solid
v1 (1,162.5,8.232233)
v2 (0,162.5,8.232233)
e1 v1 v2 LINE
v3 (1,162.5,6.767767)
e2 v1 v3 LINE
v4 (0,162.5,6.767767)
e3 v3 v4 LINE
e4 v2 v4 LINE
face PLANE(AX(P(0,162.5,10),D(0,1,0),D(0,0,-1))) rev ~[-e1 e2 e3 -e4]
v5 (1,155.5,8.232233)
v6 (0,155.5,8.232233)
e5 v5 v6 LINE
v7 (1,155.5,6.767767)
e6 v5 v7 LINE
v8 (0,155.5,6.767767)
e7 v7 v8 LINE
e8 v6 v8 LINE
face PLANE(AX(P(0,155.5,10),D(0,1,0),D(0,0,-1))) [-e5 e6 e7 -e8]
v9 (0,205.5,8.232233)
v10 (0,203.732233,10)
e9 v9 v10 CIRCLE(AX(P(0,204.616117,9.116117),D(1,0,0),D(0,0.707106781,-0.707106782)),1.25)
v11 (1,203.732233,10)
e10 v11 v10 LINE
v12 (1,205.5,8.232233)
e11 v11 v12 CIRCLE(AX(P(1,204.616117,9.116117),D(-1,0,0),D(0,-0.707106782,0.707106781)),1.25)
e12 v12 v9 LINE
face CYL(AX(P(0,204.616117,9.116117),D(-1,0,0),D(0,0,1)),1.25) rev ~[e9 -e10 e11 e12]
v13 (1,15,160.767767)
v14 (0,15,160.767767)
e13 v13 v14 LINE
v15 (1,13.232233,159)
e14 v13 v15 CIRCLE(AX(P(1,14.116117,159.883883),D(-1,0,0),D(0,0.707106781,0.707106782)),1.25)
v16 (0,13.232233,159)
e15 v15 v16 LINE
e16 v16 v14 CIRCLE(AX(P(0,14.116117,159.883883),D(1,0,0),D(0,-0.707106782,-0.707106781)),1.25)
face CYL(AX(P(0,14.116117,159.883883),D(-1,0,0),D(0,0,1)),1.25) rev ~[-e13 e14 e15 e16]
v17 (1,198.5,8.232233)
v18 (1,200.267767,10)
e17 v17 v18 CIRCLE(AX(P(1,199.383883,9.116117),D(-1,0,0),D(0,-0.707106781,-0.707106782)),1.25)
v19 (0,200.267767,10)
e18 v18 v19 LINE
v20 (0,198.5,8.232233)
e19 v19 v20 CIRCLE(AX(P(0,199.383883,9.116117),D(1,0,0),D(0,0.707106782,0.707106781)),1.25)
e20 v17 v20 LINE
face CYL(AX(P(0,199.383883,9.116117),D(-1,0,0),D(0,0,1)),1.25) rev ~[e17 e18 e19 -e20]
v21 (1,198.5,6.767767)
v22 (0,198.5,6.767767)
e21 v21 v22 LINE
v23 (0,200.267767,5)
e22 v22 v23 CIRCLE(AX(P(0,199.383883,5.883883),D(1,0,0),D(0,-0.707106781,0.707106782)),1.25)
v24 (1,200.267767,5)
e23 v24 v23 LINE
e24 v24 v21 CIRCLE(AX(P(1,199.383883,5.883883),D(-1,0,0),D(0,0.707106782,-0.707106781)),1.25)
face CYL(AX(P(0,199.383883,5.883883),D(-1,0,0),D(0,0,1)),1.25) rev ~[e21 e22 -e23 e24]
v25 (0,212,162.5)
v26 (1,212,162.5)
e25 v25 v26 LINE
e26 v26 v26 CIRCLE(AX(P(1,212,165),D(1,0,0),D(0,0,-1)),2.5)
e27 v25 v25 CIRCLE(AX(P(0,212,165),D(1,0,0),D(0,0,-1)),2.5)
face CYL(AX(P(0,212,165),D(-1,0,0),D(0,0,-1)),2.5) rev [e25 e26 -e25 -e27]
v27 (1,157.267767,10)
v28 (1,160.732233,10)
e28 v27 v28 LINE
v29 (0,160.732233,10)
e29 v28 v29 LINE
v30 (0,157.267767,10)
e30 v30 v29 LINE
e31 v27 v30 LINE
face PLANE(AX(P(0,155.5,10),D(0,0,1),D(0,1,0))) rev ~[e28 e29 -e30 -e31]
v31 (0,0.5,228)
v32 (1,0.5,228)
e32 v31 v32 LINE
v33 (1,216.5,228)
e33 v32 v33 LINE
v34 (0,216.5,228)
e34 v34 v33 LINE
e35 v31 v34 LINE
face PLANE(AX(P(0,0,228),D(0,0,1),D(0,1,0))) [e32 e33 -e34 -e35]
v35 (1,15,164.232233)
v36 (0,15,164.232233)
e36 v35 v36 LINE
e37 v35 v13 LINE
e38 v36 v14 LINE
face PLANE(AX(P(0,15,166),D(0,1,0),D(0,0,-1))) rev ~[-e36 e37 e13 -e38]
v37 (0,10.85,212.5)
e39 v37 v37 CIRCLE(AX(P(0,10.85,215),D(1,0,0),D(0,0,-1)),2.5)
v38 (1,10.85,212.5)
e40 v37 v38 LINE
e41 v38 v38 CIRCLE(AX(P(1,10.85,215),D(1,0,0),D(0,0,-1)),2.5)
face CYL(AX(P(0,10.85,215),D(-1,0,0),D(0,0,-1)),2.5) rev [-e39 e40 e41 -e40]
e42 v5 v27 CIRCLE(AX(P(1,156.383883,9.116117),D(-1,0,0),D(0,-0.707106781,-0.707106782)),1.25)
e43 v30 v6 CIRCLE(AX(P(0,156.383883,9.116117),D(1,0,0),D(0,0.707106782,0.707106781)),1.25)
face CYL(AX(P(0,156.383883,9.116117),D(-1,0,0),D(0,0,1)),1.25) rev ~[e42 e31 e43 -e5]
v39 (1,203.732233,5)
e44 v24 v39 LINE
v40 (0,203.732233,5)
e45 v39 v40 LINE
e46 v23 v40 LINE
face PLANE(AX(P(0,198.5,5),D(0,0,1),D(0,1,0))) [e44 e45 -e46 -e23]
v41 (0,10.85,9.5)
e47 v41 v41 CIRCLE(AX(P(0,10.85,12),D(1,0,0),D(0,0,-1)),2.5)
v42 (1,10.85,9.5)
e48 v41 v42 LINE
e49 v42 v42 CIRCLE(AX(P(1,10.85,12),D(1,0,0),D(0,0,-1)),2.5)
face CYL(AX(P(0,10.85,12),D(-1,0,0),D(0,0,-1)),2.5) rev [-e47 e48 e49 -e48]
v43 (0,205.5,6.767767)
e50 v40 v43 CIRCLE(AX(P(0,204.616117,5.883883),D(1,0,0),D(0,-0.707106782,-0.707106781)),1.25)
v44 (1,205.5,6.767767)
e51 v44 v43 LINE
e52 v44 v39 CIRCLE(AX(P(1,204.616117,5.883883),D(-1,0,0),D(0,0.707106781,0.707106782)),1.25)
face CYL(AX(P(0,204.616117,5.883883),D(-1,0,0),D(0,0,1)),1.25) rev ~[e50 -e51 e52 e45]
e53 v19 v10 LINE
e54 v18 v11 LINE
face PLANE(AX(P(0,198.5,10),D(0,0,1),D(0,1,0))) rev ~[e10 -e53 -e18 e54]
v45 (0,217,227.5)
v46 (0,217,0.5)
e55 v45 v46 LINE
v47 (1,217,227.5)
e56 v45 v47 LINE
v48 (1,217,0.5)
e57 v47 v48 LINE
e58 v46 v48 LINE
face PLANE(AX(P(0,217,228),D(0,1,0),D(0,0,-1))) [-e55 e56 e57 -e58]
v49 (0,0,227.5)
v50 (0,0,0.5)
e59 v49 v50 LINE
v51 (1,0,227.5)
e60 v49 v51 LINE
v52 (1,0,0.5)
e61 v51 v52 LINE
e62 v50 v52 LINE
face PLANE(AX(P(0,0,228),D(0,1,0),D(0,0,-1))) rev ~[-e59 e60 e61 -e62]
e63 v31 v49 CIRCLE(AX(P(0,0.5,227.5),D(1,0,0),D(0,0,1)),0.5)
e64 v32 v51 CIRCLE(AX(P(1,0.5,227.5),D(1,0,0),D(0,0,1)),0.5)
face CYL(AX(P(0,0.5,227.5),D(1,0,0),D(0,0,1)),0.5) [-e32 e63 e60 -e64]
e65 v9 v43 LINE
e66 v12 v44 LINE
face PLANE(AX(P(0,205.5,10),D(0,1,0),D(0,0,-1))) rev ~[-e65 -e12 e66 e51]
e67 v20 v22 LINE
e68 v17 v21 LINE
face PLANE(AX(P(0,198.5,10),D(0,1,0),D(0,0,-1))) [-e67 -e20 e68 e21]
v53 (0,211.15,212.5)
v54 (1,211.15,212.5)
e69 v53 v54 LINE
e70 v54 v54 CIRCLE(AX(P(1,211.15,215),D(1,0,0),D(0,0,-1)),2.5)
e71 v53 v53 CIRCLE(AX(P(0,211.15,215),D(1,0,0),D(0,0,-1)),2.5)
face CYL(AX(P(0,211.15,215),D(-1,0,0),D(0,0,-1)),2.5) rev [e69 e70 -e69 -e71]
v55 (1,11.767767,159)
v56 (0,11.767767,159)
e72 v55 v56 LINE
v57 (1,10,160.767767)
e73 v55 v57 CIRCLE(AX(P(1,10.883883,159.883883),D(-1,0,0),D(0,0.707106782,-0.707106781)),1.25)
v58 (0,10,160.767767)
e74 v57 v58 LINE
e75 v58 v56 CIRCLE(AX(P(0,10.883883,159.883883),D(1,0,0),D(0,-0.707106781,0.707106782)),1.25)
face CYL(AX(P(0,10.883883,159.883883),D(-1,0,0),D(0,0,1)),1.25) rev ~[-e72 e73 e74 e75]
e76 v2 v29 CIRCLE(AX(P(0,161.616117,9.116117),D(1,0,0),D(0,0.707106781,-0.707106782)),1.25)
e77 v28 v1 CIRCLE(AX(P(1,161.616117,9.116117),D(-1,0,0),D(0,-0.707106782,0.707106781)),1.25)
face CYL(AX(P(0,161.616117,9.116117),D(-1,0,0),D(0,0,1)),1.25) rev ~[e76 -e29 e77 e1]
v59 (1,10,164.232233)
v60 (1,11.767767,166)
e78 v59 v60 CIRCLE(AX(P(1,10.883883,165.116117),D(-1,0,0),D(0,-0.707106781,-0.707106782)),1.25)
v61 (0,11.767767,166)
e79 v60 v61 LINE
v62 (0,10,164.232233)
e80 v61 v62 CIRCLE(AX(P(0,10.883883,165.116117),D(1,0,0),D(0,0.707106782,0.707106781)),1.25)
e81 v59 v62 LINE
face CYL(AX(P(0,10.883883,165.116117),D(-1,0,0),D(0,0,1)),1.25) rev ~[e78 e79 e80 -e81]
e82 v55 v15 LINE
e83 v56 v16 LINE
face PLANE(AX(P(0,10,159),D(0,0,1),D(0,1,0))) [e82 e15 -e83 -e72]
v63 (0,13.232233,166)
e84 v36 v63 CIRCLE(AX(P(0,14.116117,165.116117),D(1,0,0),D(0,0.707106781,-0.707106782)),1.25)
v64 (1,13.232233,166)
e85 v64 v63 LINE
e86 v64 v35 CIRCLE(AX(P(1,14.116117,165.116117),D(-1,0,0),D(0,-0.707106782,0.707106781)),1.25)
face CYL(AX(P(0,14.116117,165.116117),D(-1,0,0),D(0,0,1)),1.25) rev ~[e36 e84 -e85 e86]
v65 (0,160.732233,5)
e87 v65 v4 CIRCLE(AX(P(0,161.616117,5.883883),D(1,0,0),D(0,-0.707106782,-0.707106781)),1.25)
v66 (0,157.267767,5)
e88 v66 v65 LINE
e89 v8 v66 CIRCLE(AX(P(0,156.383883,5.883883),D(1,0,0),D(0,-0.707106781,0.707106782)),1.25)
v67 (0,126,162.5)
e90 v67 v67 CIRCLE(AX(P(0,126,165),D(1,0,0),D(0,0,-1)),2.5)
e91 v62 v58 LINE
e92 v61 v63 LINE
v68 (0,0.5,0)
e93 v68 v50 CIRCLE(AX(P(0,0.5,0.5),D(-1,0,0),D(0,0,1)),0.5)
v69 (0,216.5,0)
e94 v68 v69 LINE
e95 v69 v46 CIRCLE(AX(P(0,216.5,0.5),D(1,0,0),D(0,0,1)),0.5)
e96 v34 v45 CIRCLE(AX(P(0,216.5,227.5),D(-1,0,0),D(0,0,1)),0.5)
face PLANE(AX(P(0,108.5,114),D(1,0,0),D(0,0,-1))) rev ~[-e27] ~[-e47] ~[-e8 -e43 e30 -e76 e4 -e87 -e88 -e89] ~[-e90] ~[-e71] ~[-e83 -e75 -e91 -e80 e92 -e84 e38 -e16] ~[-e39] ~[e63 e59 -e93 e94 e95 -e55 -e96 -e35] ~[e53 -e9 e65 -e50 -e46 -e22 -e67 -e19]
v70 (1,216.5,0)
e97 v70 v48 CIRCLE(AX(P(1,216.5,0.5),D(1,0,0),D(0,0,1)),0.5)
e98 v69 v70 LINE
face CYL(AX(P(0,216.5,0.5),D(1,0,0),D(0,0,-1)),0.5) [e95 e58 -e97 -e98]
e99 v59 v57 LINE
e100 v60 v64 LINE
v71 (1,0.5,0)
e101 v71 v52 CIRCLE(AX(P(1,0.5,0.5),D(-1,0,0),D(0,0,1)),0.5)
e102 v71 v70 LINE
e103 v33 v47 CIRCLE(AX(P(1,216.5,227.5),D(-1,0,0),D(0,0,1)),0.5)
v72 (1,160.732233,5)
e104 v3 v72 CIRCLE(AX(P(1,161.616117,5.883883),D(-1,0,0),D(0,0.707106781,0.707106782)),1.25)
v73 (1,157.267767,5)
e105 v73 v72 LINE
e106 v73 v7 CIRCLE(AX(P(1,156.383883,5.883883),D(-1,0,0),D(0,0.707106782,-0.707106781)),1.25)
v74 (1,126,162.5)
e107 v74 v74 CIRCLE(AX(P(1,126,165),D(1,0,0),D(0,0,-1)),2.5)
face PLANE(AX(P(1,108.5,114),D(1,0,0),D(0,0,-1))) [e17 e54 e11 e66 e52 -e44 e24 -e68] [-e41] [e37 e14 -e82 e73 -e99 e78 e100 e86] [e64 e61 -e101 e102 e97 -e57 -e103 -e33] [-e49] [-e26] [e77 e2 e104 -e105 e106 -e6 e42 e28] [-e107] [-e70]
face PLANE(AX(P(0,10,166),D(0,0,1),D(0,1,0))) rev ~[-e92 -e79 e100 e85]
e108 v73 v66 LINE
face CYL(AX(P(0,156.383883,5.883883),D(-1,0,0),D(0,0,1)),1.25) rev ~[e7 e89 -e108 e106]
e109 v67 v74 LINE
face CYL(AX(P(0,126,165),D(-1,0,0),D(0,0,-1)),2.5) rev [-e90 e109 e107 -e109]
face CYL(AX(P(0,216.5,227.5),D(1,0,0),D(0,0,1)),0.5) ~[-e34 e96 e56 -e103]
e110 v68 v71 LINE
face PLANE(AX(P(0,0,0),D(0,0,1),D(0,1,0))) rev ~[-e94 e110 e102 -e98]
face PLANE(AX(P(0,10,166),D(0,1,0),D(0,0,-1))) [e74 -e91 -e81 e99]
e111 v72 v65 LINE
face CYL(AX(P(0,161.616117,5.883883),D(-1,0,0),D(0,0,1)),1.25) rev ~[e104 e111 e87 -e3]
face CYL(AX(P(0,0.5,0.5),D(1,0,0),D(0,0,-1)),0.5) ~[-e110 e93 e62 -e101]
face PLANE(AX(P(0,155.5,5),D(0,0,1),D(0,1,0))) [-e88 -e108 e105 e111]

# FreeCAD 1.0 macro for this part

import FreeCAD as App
import Part
import Sketcher
Q = App.Units.Quantity


def edges_at(feature, points):
    """Names of the edges that pass closest to the given points."""
    edges = feature.Shape.Edges
    near = lambda p: min(range(len(edges)), key=lambda i: edges[i].distToShape(Part.Vertex(*p))[0])
    return sorted({f"Edge{near(p) + 1}" for p in points})

doc = App.newDocument("Part")
body = doc.addObject("PartDesign::Body", "Body")

sketch1 = body.newObject("Sketcher::SketchObject", "Sketch")
sketch1.AttachmentSupport = (doc.getObject("YZ_Plane"), [""])
sketch1.MapMode = "FlatFace"
sketch1.addGeometry([
    Part.LineSegment(App.Vector(217, 228, 0), App.Vector(0, 228, 0)),
    Part.LineSegment(App.Vector(0, 228, 0), App.Vector(0, 0, 0)),
    Part.LineSegment(App.Vector(0, 0, 0), App.Vector(217, 0, 0)),
    Part.LineSegment(App.Vector(217, 0, 0), App.Vector(217, 228, 0)),
    Part.Circle(App.Vector(10.8, 215, 0), App.Vector(0, 0, 1), 2.5),
    Part.LineSegment(App.Vector(10, 159, 0), App.Vector(10, 166, 0)),
    Part.LineSegment(App.Vector(10, 166, 0), App.Vector(15, 166, 0)),
    Part.LineSegment(App.Vector(15, 166, 0), App.Vector(15, 159, 0)),
    Part.LineSegment(App.Vector(15, 159, 0), App.Vector(10, 159, 0)),
    Part.Circle(App.Vector(10.8, 12, 0), App.Vector(0, 0, 1), 2.5),
    Part.Circle(App.Vector(126, 165, 0), App.Vector(0, 0, 1), 2.5),
    Part.Circle(App.Vector(211.2, 215, 0), App.Vector(0, 0, 1), 2.5),
    Part.Circle(App.Vector(212, 165, 0), App.Vector(0, 0, 1), 2.5),
    Part.LineSegment(App.Vector(155.5, 5, 0), App.Vector(155.5, 10, 0)),
    Part.LineSegment(App.Vector(155.5, 10, 0), App.Vector(162.5, 10, 0)),
    Part.LineSegment(App.Vector(162.5, 10, 0), App.Vector(162.5, 5, 0)),
    Part.LineSegment(App.Vector(162.5, 5, 0), App.Vector(155.5, 5, 0)),
    Part.LineSegment(App.Vector(198.5, 5, 0), App.Vector(198.5, 10, 0)),
    Part.LineSegment(App.Vector(198.5, 10, 0), App.Vector(205.5, 10, 0)),
    Part.LineSegment(App.Vector(205.5, 10, 0), App.Vector(205.5, 5, 0)),
    Part.LineSegment(App.Vector(205.5, 5, 0), App.Vector(198.5, 5, 0)),
], False)
sketch1.addConstraint([
    Sketcher.Constraint("Coincident", 0, 2, 1, 1),
    Sketcher.Constraint("Coincident", 1, 2, 2, 1),
    Sketcher.Constraint("Coincident", 2, 2, 3, 1),
    Sketcher.Constraint("Coincident", 3, 2, 0, 1),
    Sketcher.Constraint("Coincident", 5, 2, 6, 1),
    Sketcher.Constraint("Coincident", 6, 2, 7, 1),
    Sketcher.Constraint("Coincident", 7, 2, 8, 1),
    Sketcher.Constraint("Coincident", 8, 2, 5, 1),
    Sketcher.Constraint("Coincident", 13, 2, 14, 1),
    Sketcher.Constraint("Coincident", 14, 2, 15, 1),
    Sketcher.Constraint("Coincident", 15, 2, 16, 1),
    Sketcher.Constraint("Coincident", 16, 2, 13, 1),
    Sketcher.Constraint("Coincident", 17, 2, 18, 1),
    Sketcher.Constraint("Coincident", 18, 2, 19, 1),
    Sketcher.Constraint("Coincident", 19, 2, 20, 1),
    Sketcher.Constraint("Coincident", 20, 2, 17, 1),
    Sketcher.Constraint("Horizontal", 0),
    Sketcher.Constraint("Vertical", 1),
    Sketcher.Constraint("Horizontal", 2),
    Sketcher.Constraint("Vertical", 3),
    Sketcher.Constraint("Vertical", 5),
    Sketcher.Constraint("Horizontal", 6),
    Sketcher.Constraint("Vertical", 7),
    Sketcher.Constraint("Horizontal", 8),
    Sketcher.Constraint("Vertical", 13),
    Sketcher.Constraint("Horizontal", 14),
    Sketcher.Constraint("Vertical", 15),
    Sketcher.Constraint("Horizontal", 16),
    Sketcher.Constraint("Vertical", 17),
    Sketcher.Constraint("Horizontal", 18),
    Sketcher.Constraint("Vertical", 19),
    Sketcher.Constraint("Horizontal", 20),
    Sketcher.Constraint("Coincident", 1, 2, -1, 1),
    Sketcher.Constraint("Equal", 4, 9),
    Sketcher.Constraint("Equal", 9, 10),
    Sketcher.Constraint("Equal", 10, 11),
    Sketcher.Constraint("Equal", 11, 12),
    Sketcher.Constraint("Horizontal", 4, 3, 11, 3),
    Sketcher.Constraint("Horizontal", 10, 3, 12, 3),
    Sketcher.Constraint("Horizontal", 14, 2, 17, 2),
    Sketcher.Constraint("Horizontal", 16, 2, 19, 2),
    Sketcher.Constraint("Vertical", 4, 3, 9, 3),
    Sketcher.Constraint("Equal", 16, 18),
    Sketcher.Constraint("Equal", 20, 5),
    Sketcher.Constraint("Equal", 8, 13),
    Sketcher.Constraint("Diameter", 4, Q("5 mm")),
    Sketcher.Constraint("DistanceX", 0, 2, 0, 1, Q("217 mm")),
    Sketcher.Constraint("DistanceX", 6, 1, 6, 2, Q("5 mm")),
    Sketcher.Constraint("DistanceX", 14, 1, 14, 2, Q("7 mm")),
    Sketcher.Constraint("DistanceY", 1, 2, 1, 1, Q("228 mm")),
    Sketcher.Constraint("DistanceY", -1, 1, 4, 3, Q("215 mm")),
    Sketcher.Constraint("DistanceY", -1, 1, 9, 3, Q("12 mm")),
    Sketcher.Constraint("DistanceX", -1, 1, 10, 3, Q("126 mm")),
    Sketcher.Constraint("DistanceY", -1, 1, 10, 3, Q("165 mm")),
    Sketcher.Constraint("DistanceX", -1, 1, 12, 3, Q("212 mm")),
    Sketcher.Constraint("DistanceX", -1, 1, 5, 2, Q("10 mm")),
    Sketcher.Constraint("DistanceY", -1, 1, 5, 2, Q("166 mm")),
    Sketcher.Constraint("DistanceY", -1, 1, 13, 2, Q("10 mm")),
    Sketcher.Constraint("DistanceX", 14, 2, 17, 2, Q("36 mm")),
    Sketcher.Constraint("DistanceX", -1, 1, 13, 2, Q("155.5 mm")),
    Sketcher.Constraint("DistanceX", 4, 3, 11, 3, Q("200.3 mm")),
    Sketcher.Constraint("DistanceX", -1, 1, 4, 3, Q("10.85 mm")),
])
pad1 = body.newObject("PartDesign::Pad", "Pad")
pad1.Profile = sketch1
pad1.Length = 1

sketch2 = body.newObject("Sketcher::SketchObject", "Sketch001")
sketch2.AttachmentSupport = (doc.getObject("YZ_Plane"), [""])
sketch2.MapMode = "FlatFace"
sketch2.addGeometry([
    Part.Circle(App.Vector(204.6, 5.9, 0), App.Vector(0, 0, 1), 1.2),
    Part.Circle(App.Vector(204.6, 9.1, 0), App.Vector(0, 0, 1), 1.2),
    Part.Circle(App.Vector(199.4, 5.9, 0), App.Vector(0, 0, 1), 1.2),
    Part.Circle(App.Vector(199.4, 9.1, 0), App.Vector(0, 0, 1), 1.2),
    Part.Circle(App.Vector(161.6, 9.1, 0), App.Vector(0, 0, 1), 1.2),
    Part.Circle(App.Vector(161.6, 5.9, 0), App.Vector(0, 0, 1), 1.2),
    Part.Circle(App.Vector(156.4, 9.1, 0), App.Vector(0, 0, 1), 1.2),
    Part.Circle(App.Vector(156.4, 5.9, 0), App.Vector(0, 0, 1), 1.2),
    Part.Circle(App.Vector(14.1, 165.1, 0), App.Vector(0, 0, 1), 1.2),
    Part.Circle(App.Vector(10.9, 165.1, 0), App.Vector(0, 0, 1), 1.2),
    Part.Circle(App.Vector(10.9, 159.9, 0), App.Vector(0, 0, 1), 1.2),
    Part.Circle(App.Vector(14.1, 159.9, 0), App.Vector(0, 0, 1), 1.2),
], False)
sketch2.addConstraint([
    Sketcher.Constraint("Equal", 0, 1),
    Sketcher.Constraint("Equal", 1, 2),
    Sketcher.Constraint("Equal", 2, 3),
    Sketcher.Constraint("Equal", 3, 4),
    Sketcher.Constraint("Equal", 4, 5),
    Sketcher.Constraint("Equal", 5, 6),
    Sketcher.Constraint("Equal", 6, 7),
    Sketcher.Constraint("Equal", 7, 8),
    Sketcher.Constraint("Equal", 8, 9),
    Sketcher.Constraint("Equal", 9, 10),
    Sketcher.Constraint("Equal", 10, 11),
    Sketcher.Constraint("Horizontal", 0, 3, 2, 3),
    Sketcher.Constraint("Horizontal", 1, 3, 3, 3),
    Sketcher.Constraint("Horizontal", 3, 3, 4, 3),
    Sketcher.Constraint("Horizontal", 2, 3, 5, 3),
    Sketcher.Constraint("Horizontal", 4, 3, 6, 3),
    Sketcher.Constraint("Horizontal", 5, 3, 7, 3),
    Sketcher.Constraint("Horizontal", 8, 3, 9, 3),
    Sketcher.Constraint("Horizontal", 10, 3, 11, 3),
    Sketcher.Constraint("Vertical", 0, 3, 1, 3),
    Sketcher.Constraint("Vertical", 2, 3, 3, 3),
    Sketcher.Constraint("Vertical", 4, 3, 5, 3),
    Sketcher.Constraint("Vertical", 6, 3, 7, 3),
    Sketcher.Constraint("Vertical", 9, 3, 10, 3),
    Sketcher.Constraint("Vertical", 8, 3, 11, 3),
    Sketcher.Constraint("Diameter", 0, Q("2.5 mm")),
    Sketcher.Constraint("DistanceX", 4, 3, 1, 3, Q("43 mm")),
    Sketcher.Constraint("DistanceX", 6, 3, 3, 3, Q("43 mm")),
    Sketcher.Constraint("DistanceY", 6, 3, 8, 3, Q("156 mm")),
    Sketcher.Constraint("DistanceY", 7, 3, 10, 3, Q("154 mm")),
    Sketcher.Constraint("DistanceX", 8, 3, 4, 3, Q("147.5 mm")),
    Sketcher.Constraint("DistanceX", 9, 3, 6, 3, Q("145.5 mm")),
    Sketcher.Constraint("DistanceX", -1, 1, 0, 3, Q("204.616117 mm")),
    Sketcher.Constraint("DistanceY", -1, 1, 0, 3, Q("5.883883 mm")),
    Sketcher.Constraint("DistanceY", -1, 1, 1, 3, Q("9.116117 mm")),
    Sketcher.Constraint("DistanceX", -1, 1, 2, 3, Q("199.383883 mm")),
])
pocket1 = body.newObject("PartDesign::Pocket", "Pocket")
pocket1.Profile = sketch2
pocket1.Type = "ThroughAll"
pocket1.Reversed = True
doc.recompute()

fillet = body.newObject("PartDesign::Fillet", "Fillet")
fillet.Base = (pocket1, edges_at(pocket1, [
    (0.5, 0, 0),
    (0.5, 0, 228),
    (0.5, 217, 228),
    (0.5, 217, 0),
]))
fillet.Radius = 0.5

doc.recompute()
